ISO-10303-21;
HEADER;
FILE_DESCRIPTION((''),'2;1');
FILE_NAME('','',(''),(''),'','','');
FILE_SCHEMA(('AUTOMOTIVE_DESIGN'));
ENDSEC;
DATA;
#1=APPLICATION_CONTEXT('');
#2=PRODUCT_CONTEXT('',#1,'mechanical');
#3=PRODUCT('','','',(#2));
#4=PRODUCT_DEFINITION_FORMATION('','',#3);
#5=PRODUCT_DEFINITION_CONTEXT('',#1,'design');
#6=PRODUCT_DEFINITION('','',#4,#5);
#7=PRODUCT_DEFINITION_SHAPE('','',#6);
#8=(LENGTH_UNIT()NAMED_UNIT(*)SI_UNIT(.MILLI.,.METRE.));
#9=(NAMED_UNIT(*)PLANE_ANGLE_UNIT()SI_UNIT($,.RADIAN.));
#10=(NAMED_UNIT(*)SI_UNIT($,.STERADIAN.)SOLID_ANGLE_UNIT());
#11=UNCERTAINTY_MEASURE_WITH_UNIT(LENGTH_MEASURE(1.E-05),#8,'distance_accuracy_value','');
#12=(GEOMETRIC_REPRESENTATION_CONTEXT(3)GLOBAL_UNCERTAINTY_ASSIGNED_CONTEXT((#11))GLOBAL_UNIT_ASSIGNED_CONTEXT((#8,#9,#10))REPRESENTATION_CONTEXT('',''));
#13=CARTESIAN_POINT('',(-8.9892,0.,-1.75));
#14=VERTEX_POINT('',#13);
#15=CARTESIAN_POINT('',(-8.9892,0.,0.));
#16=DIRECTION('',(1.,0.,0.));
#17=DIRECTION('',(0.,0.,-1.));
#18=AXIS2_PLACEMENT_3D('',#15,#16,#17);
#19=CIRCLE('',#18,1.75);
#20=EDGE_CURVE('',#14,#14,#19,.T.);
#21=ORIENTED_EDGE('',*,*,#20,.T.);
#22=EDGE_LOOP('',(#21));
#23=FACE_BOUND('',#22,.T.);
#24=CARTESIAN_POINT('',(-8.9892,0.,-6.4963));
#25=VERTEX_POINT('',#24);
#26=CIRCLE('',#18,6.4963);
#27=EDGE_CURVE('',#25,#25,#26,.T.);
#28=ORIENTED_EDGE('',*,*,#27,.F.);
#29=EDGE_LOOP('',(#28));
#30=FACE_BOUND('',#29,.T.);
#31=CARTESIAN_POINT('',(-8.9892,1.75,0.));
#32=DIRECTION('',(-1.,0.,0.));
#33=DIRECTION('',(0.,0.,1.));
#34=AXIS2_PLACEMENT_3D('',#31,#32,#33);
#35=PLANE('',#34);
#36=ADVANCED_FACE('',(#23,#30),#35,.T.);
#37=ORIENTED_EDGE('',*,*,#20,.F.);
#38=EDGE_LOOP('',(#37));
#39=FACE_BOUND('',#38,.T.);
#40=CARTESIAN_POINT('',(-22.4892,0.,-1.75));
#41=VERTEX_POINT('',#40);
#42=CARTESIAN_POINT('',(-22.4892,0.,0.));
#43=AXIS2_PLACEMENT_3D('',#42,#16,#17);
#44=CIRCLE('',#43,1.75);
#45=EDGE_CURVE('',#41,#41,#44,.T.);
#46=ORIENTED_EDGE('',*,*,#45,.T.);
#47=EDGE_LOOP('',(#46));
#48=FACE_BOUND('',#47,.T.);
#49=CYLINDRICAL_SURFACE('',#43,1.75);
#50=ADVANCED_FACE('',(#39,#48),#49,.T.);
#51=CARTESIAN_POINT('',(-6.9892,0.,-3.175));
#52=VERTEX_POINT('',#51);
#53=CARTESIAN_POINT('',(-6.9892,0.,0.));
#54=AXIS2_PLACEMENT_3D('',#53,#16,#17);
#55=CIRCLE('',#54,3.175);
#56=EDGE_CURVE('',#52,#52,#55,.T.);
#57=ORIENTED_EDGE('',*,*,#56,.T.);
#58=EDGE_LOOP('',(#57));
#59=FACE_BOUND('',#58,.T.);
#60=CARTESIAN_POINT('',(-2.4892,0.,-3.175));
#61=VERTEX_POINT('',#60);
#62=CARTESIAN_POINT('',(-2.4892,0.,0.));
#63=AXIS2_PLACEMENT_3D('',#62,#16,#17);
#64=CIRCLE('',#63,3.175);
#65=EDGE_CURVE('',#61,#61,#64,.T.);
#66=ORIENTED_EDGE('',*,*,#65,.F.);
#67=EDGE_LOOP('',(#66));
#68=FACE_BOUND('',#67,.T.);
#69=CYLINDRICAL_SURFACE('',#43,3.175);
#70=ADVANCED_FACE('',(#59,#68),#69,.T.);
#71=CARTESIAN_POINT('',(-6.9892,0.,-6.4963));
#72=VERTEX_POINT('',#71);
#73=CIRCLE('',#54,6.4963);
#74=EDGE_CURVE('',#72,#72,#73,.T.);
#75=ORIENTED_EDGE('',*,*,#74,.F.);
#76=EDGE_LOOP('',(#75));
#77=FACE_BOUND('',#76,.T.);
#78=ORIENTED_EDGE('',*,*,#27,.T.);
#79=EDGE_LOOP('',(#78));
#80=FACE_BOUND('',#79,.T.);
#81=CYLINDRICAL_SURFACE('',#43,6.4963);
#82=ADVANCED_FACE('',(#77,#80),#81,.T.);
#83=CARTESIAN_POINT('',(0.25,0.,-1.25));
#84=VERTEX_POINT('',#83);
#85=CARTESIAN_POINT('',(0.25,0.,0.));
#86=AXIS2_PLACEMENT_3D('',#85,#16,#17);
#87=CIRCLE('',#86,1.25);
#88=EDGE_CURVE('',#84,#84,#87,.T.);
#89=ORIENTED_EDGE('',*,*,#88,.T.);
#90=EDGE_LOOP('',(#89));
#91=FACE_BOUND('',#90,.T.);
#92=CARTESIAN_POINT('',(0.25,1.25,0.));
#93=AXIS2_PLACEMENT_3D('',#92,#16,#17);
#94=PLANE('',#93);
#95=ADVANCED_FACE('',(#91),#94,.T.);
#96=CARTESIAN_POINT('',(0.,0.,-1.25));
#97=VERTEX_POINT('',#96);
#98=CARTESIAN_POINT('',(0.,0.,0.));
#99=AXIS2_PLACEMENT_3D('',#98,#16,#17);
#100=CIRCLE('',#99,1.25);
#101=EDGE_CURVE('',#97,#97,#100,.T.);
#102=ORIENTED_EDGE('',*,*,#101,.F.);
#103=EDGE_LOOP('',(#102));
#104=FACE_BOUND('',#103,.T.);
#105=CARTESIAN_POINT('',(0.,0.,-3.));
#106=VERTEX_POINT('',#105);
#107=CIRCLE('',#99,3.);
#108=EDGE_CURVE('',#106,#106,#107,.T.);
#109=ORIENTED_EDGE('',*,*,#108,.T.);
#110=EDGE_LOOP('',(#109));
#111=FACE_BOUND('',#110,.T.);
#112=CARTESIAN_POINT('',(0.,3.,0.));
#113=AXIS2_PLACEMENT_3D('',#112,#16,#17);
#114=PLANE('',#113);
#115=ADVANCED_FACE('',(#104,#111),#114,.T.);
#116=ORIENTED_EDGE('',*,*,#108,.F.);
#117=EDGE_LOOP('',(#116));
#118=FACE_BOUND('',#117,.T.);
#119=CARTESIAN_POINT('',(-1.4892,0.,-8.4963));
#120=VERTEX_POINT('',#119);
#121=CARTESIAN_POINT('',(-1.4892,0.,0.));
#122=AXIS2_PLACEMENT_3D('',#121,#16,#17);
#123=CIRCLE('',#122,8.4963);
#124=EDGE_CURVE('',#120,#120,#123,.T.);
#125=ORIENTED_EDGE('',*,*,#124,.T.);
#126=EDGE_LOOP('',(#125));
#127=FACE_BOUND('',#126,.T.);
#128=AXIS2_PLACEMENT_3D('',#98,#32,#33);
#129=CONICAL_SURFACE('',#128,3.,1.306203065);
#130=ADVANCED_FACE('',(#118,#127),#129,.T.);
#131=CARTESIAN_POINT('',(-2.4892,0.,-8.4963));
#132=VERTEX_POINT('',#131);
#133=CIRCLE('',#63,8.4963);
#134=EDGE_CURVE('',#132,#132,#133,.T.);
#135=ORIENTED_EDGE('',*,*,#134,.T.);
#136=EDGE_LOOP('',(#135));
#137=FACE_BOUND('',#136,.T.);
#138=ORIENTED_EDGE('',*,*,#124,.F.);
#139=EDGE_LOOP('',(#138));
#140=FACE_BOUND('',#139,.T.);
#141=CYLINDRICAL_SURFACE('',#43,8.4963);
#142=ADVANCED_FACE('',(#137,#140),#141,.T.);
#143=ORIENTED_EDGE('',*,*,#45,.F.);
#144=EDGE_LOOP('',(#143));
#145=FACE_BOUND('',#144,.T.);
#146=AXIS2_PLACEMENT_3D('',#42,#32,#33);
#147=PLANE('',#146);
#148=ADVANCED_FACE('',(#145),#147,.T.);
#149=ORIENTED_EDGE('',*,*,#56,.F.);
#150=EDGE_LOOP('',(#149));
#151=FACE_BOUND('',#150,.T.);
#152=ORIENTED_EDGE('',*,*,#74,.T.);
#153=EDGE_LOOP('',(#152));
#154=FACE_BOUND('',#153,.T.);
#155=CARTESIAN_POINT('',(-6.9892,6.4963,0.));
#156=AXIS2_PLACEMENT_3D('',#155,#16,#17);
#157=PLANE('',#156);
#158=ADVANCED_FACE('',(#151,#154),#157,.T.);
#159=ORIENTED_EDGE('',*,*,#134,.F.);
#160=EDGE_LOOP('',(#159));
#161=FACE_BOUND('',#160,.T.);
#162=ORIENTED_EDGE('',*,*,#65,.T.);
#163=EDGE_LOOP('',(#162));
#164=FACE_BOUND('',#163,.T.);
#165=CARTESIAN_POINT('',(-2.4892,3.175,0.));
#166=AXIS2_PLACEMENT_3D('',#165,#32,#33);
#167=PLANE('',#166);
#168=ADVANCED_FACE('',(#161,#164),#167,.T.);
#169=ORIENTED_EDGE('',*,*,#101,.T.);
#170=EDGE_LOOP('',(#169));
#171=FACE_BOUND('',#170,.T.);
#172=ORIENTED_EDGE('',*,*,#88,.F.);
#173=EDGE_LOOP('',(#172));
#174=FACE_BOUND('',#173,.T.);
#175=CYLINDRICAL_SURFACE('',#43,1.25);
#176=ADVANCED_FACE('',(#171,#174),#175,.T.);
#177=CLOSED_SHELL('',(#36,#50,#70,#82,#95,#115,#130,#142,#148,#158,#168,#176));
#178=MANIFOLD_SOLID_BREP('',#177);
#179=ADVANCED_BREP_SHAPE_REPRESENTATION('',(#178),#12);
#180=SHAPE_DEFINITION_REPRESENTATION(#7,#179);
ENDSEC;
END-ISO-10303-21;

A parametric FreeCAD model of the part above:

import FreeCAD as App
import Part
import Sketcher

V = App.Vector

doc = App.newDocument("Part")
body = doc.addObject("PartDesign::Body", "Body")

# Sketch on XY plane
sketch1 = doc.addObject("Sketcher::SketchObject", "Sketch")
body.addObject(sketch1)
sketch1.AttachmentSupport = (doc.XY_Plane, [""])
sketch1.MapMode = "FlatFace"
sketch1.addGeometry(Part.LineSegment(V(-8.99, 1.75, 0), V(-22.49, 1.75, 0)), False)
sketch1.addGeometry(Part.LineSegment(V(-22.49, 1.75, 0), V(-22.49, 0, 0)), False)
sketch1.addGeometry(Part.LineSegment(V(-22.49, 0, 0), V(0.25, 0, 0)), False)
sketch1.addGeometry(Part.LineSegment(V(0.25, 0, 0), V(0.25, 1.25, 0)), False)
sketch1.addGeometry(Part.LineSegment(V(0.25, 1.25, 0), V(0, 1.25, 0)), False)
sketch1.addGeometry(Part.LineSegment(V(0, 1.25, 0), V(0, 3, 0)), False)
sketch1.addGeometry(Part.LineSegment(V(0, 3, 0), V(-1.49, 8.5, 0)), False)
sketch1.addGeometry(Part.LineSegment(V(-1.49, 8.5, 0), V(-2.49, 8.5, 0)), False)
sketch1.addGeometry(Part.LineSegment(V(-2.49, 8.5, 0), V(-2.49, 3.17, 0)), False)
sketch1.addGeometry(Part.LineSegment(V(-2.49, 3.17, 0), V(-6.99, 3.17, 0)), False)
sketch1.addGeometry(Part.LineSegment(V(-6.99, 3.17, 0), V(-6.99, 6.5, 0)), False)
sketch1.addGeometry(Part.LineSegment(V(-6.99, 6.5, 0), V(-8.99, 6.5, 0)), False)
sketch1.addGeometry(Part.LineSegment(V(-8.99, 6.5, 0), V(-8.99, 1.75, 0)), False)
sketch1.addConstraint(Sketcher.Constraint("Coincident", 0, 2, 1, 1))
sketch1.addConstraint(Sketcher.Constraint("Coincident", 1, 2, 2, 1))
sketch1.addConstraint(Sketcher.Constraint("Coincident", 2, 2, 3, 1))
sketch1.addConstraint(Sketcher.Constraint("Coincident", 3, 2, 4, 1))
sketch1.addConstraint(Sketcher.Constraint("Coincident", 4, 2, 5, 1))
sketch1.addConstraint(Sketcher.Constraint("Coincident", 5, 2, 6, 1))
sketch1.addConstraint(Sketcher.Constraint("Coincident", 6, 2, 7, 1))
sketch1.addConstraint(Sketcher.Constraint("Coincident", 7, 2, 8, 1))
sketch1.addConstraint(Sketcher.Constraint("Coincident", 8, 2, 9, 1))
sketch1.addConstraint(Sketcher.Constraint("Coincident", 9, 2, 10, 1))
sketch1.addConstraint(Sketcher.Constraint("Coincident", 10, 2, 11, 1))
sketch1.addConstraint(Sketcher.Constraint("Coincident", 11, 2, 12, 1))
sketch1.addConstraint(Sketcher.Constraint("Coincident", 12, 2, 0, 1))
sketch1.addConstraint(Sketcher.Constraint("Horizontal", 0))
sketch1.addConstraint(Sketcher.Constraint("Vertical", 1))
sketch1.addConstraint(Sketcher.Constraint("Horizontal", 2))
sketch1.addConstraint(Sketcher.Constraint("Vertical", 3))
sketch1.addConstraint(Sketcher.Constraint("Horizontal", 4))
sketch1.addConstraint(Sketcher.Constraint("Vertical", 5))
sketch1.addConstraint(Sketcher.Constraint("Horizontal", 7))
sketch1.addConstraint(Sketcher.Constraint("Vertical", 8))
sketch1.addConstraint(Sketcher.Constraint("Horizontal", 9))
sketch1.addConstraint(Sketcher.Constraint("Vertical", 10))
sketch1.addConstraint(Sketcher.Constraint("Horizontal", 11))
sketch1.addConstraint(Sketcher.Constraint("Vertical", 12))
sketch1.addConstraint(Sketcher.Constraint("PointOnObject", 1, 2, -1))
sketch1.addConstraint(Sketcher.Constraint("PointOnObject", 4, 2, -2))
sketch1.addConstraint(Sketcher.Constraint("Equal", 1, 5))
sketch1.addConstraint(Sketcher.Constraint("DistanceX", 7, 2, 7, 1, 1.0))
sketch1.addConstraint(Sketcher.Constraint("DistanceX", 11, 2, 11, 1, 2.0))
sketch1.addConstraint(Sketcher.Constraint("DistanceX", 0, 2, 0, 1, 13.5))
sketch1.addConstraint(Sketcher.Constraint("DistanceX", 9, 2, 9, 1, 4.5))
sketch1.addConstraint(Sketcher.Constraint("DistanceY", -1, 1, 5, 2, 3.0))
sketch1.addConstraint(Sketcher.Constraint("DistanceY", 10, 2, 7, 2, 2.0))
sketch1.addConstraint(Sketcher.Constraint("DistanceX", 4, 2, 4, 1, 0.25))
sketch1.addConstraint(Sketcher.Constraint("DistanceY", 1, 2, 1, 1, 1.75))
sketch1.addConstraint(Sketcher.Constraint("DistanceX", 2, 1, 2, 2, 22.7392))
sketch1.addConstraint(Sketcher.Constraint("DistanceY", 8, 2, 8, 1, 5.3213))
sketch1.addConstraint(Sketcher.Constraint("DistanceY", 12, 2, 12, 1, 4.7463))
revolution = doc.addObject("PartDesign::Revolution", "Revolution")
body.addObject(revolution)
revolution.Profile = sketch1
revolution.ReferenceAxis = (sketch1, ["H_Axis"])
revolution.Angle = 360

doc.recompute()
